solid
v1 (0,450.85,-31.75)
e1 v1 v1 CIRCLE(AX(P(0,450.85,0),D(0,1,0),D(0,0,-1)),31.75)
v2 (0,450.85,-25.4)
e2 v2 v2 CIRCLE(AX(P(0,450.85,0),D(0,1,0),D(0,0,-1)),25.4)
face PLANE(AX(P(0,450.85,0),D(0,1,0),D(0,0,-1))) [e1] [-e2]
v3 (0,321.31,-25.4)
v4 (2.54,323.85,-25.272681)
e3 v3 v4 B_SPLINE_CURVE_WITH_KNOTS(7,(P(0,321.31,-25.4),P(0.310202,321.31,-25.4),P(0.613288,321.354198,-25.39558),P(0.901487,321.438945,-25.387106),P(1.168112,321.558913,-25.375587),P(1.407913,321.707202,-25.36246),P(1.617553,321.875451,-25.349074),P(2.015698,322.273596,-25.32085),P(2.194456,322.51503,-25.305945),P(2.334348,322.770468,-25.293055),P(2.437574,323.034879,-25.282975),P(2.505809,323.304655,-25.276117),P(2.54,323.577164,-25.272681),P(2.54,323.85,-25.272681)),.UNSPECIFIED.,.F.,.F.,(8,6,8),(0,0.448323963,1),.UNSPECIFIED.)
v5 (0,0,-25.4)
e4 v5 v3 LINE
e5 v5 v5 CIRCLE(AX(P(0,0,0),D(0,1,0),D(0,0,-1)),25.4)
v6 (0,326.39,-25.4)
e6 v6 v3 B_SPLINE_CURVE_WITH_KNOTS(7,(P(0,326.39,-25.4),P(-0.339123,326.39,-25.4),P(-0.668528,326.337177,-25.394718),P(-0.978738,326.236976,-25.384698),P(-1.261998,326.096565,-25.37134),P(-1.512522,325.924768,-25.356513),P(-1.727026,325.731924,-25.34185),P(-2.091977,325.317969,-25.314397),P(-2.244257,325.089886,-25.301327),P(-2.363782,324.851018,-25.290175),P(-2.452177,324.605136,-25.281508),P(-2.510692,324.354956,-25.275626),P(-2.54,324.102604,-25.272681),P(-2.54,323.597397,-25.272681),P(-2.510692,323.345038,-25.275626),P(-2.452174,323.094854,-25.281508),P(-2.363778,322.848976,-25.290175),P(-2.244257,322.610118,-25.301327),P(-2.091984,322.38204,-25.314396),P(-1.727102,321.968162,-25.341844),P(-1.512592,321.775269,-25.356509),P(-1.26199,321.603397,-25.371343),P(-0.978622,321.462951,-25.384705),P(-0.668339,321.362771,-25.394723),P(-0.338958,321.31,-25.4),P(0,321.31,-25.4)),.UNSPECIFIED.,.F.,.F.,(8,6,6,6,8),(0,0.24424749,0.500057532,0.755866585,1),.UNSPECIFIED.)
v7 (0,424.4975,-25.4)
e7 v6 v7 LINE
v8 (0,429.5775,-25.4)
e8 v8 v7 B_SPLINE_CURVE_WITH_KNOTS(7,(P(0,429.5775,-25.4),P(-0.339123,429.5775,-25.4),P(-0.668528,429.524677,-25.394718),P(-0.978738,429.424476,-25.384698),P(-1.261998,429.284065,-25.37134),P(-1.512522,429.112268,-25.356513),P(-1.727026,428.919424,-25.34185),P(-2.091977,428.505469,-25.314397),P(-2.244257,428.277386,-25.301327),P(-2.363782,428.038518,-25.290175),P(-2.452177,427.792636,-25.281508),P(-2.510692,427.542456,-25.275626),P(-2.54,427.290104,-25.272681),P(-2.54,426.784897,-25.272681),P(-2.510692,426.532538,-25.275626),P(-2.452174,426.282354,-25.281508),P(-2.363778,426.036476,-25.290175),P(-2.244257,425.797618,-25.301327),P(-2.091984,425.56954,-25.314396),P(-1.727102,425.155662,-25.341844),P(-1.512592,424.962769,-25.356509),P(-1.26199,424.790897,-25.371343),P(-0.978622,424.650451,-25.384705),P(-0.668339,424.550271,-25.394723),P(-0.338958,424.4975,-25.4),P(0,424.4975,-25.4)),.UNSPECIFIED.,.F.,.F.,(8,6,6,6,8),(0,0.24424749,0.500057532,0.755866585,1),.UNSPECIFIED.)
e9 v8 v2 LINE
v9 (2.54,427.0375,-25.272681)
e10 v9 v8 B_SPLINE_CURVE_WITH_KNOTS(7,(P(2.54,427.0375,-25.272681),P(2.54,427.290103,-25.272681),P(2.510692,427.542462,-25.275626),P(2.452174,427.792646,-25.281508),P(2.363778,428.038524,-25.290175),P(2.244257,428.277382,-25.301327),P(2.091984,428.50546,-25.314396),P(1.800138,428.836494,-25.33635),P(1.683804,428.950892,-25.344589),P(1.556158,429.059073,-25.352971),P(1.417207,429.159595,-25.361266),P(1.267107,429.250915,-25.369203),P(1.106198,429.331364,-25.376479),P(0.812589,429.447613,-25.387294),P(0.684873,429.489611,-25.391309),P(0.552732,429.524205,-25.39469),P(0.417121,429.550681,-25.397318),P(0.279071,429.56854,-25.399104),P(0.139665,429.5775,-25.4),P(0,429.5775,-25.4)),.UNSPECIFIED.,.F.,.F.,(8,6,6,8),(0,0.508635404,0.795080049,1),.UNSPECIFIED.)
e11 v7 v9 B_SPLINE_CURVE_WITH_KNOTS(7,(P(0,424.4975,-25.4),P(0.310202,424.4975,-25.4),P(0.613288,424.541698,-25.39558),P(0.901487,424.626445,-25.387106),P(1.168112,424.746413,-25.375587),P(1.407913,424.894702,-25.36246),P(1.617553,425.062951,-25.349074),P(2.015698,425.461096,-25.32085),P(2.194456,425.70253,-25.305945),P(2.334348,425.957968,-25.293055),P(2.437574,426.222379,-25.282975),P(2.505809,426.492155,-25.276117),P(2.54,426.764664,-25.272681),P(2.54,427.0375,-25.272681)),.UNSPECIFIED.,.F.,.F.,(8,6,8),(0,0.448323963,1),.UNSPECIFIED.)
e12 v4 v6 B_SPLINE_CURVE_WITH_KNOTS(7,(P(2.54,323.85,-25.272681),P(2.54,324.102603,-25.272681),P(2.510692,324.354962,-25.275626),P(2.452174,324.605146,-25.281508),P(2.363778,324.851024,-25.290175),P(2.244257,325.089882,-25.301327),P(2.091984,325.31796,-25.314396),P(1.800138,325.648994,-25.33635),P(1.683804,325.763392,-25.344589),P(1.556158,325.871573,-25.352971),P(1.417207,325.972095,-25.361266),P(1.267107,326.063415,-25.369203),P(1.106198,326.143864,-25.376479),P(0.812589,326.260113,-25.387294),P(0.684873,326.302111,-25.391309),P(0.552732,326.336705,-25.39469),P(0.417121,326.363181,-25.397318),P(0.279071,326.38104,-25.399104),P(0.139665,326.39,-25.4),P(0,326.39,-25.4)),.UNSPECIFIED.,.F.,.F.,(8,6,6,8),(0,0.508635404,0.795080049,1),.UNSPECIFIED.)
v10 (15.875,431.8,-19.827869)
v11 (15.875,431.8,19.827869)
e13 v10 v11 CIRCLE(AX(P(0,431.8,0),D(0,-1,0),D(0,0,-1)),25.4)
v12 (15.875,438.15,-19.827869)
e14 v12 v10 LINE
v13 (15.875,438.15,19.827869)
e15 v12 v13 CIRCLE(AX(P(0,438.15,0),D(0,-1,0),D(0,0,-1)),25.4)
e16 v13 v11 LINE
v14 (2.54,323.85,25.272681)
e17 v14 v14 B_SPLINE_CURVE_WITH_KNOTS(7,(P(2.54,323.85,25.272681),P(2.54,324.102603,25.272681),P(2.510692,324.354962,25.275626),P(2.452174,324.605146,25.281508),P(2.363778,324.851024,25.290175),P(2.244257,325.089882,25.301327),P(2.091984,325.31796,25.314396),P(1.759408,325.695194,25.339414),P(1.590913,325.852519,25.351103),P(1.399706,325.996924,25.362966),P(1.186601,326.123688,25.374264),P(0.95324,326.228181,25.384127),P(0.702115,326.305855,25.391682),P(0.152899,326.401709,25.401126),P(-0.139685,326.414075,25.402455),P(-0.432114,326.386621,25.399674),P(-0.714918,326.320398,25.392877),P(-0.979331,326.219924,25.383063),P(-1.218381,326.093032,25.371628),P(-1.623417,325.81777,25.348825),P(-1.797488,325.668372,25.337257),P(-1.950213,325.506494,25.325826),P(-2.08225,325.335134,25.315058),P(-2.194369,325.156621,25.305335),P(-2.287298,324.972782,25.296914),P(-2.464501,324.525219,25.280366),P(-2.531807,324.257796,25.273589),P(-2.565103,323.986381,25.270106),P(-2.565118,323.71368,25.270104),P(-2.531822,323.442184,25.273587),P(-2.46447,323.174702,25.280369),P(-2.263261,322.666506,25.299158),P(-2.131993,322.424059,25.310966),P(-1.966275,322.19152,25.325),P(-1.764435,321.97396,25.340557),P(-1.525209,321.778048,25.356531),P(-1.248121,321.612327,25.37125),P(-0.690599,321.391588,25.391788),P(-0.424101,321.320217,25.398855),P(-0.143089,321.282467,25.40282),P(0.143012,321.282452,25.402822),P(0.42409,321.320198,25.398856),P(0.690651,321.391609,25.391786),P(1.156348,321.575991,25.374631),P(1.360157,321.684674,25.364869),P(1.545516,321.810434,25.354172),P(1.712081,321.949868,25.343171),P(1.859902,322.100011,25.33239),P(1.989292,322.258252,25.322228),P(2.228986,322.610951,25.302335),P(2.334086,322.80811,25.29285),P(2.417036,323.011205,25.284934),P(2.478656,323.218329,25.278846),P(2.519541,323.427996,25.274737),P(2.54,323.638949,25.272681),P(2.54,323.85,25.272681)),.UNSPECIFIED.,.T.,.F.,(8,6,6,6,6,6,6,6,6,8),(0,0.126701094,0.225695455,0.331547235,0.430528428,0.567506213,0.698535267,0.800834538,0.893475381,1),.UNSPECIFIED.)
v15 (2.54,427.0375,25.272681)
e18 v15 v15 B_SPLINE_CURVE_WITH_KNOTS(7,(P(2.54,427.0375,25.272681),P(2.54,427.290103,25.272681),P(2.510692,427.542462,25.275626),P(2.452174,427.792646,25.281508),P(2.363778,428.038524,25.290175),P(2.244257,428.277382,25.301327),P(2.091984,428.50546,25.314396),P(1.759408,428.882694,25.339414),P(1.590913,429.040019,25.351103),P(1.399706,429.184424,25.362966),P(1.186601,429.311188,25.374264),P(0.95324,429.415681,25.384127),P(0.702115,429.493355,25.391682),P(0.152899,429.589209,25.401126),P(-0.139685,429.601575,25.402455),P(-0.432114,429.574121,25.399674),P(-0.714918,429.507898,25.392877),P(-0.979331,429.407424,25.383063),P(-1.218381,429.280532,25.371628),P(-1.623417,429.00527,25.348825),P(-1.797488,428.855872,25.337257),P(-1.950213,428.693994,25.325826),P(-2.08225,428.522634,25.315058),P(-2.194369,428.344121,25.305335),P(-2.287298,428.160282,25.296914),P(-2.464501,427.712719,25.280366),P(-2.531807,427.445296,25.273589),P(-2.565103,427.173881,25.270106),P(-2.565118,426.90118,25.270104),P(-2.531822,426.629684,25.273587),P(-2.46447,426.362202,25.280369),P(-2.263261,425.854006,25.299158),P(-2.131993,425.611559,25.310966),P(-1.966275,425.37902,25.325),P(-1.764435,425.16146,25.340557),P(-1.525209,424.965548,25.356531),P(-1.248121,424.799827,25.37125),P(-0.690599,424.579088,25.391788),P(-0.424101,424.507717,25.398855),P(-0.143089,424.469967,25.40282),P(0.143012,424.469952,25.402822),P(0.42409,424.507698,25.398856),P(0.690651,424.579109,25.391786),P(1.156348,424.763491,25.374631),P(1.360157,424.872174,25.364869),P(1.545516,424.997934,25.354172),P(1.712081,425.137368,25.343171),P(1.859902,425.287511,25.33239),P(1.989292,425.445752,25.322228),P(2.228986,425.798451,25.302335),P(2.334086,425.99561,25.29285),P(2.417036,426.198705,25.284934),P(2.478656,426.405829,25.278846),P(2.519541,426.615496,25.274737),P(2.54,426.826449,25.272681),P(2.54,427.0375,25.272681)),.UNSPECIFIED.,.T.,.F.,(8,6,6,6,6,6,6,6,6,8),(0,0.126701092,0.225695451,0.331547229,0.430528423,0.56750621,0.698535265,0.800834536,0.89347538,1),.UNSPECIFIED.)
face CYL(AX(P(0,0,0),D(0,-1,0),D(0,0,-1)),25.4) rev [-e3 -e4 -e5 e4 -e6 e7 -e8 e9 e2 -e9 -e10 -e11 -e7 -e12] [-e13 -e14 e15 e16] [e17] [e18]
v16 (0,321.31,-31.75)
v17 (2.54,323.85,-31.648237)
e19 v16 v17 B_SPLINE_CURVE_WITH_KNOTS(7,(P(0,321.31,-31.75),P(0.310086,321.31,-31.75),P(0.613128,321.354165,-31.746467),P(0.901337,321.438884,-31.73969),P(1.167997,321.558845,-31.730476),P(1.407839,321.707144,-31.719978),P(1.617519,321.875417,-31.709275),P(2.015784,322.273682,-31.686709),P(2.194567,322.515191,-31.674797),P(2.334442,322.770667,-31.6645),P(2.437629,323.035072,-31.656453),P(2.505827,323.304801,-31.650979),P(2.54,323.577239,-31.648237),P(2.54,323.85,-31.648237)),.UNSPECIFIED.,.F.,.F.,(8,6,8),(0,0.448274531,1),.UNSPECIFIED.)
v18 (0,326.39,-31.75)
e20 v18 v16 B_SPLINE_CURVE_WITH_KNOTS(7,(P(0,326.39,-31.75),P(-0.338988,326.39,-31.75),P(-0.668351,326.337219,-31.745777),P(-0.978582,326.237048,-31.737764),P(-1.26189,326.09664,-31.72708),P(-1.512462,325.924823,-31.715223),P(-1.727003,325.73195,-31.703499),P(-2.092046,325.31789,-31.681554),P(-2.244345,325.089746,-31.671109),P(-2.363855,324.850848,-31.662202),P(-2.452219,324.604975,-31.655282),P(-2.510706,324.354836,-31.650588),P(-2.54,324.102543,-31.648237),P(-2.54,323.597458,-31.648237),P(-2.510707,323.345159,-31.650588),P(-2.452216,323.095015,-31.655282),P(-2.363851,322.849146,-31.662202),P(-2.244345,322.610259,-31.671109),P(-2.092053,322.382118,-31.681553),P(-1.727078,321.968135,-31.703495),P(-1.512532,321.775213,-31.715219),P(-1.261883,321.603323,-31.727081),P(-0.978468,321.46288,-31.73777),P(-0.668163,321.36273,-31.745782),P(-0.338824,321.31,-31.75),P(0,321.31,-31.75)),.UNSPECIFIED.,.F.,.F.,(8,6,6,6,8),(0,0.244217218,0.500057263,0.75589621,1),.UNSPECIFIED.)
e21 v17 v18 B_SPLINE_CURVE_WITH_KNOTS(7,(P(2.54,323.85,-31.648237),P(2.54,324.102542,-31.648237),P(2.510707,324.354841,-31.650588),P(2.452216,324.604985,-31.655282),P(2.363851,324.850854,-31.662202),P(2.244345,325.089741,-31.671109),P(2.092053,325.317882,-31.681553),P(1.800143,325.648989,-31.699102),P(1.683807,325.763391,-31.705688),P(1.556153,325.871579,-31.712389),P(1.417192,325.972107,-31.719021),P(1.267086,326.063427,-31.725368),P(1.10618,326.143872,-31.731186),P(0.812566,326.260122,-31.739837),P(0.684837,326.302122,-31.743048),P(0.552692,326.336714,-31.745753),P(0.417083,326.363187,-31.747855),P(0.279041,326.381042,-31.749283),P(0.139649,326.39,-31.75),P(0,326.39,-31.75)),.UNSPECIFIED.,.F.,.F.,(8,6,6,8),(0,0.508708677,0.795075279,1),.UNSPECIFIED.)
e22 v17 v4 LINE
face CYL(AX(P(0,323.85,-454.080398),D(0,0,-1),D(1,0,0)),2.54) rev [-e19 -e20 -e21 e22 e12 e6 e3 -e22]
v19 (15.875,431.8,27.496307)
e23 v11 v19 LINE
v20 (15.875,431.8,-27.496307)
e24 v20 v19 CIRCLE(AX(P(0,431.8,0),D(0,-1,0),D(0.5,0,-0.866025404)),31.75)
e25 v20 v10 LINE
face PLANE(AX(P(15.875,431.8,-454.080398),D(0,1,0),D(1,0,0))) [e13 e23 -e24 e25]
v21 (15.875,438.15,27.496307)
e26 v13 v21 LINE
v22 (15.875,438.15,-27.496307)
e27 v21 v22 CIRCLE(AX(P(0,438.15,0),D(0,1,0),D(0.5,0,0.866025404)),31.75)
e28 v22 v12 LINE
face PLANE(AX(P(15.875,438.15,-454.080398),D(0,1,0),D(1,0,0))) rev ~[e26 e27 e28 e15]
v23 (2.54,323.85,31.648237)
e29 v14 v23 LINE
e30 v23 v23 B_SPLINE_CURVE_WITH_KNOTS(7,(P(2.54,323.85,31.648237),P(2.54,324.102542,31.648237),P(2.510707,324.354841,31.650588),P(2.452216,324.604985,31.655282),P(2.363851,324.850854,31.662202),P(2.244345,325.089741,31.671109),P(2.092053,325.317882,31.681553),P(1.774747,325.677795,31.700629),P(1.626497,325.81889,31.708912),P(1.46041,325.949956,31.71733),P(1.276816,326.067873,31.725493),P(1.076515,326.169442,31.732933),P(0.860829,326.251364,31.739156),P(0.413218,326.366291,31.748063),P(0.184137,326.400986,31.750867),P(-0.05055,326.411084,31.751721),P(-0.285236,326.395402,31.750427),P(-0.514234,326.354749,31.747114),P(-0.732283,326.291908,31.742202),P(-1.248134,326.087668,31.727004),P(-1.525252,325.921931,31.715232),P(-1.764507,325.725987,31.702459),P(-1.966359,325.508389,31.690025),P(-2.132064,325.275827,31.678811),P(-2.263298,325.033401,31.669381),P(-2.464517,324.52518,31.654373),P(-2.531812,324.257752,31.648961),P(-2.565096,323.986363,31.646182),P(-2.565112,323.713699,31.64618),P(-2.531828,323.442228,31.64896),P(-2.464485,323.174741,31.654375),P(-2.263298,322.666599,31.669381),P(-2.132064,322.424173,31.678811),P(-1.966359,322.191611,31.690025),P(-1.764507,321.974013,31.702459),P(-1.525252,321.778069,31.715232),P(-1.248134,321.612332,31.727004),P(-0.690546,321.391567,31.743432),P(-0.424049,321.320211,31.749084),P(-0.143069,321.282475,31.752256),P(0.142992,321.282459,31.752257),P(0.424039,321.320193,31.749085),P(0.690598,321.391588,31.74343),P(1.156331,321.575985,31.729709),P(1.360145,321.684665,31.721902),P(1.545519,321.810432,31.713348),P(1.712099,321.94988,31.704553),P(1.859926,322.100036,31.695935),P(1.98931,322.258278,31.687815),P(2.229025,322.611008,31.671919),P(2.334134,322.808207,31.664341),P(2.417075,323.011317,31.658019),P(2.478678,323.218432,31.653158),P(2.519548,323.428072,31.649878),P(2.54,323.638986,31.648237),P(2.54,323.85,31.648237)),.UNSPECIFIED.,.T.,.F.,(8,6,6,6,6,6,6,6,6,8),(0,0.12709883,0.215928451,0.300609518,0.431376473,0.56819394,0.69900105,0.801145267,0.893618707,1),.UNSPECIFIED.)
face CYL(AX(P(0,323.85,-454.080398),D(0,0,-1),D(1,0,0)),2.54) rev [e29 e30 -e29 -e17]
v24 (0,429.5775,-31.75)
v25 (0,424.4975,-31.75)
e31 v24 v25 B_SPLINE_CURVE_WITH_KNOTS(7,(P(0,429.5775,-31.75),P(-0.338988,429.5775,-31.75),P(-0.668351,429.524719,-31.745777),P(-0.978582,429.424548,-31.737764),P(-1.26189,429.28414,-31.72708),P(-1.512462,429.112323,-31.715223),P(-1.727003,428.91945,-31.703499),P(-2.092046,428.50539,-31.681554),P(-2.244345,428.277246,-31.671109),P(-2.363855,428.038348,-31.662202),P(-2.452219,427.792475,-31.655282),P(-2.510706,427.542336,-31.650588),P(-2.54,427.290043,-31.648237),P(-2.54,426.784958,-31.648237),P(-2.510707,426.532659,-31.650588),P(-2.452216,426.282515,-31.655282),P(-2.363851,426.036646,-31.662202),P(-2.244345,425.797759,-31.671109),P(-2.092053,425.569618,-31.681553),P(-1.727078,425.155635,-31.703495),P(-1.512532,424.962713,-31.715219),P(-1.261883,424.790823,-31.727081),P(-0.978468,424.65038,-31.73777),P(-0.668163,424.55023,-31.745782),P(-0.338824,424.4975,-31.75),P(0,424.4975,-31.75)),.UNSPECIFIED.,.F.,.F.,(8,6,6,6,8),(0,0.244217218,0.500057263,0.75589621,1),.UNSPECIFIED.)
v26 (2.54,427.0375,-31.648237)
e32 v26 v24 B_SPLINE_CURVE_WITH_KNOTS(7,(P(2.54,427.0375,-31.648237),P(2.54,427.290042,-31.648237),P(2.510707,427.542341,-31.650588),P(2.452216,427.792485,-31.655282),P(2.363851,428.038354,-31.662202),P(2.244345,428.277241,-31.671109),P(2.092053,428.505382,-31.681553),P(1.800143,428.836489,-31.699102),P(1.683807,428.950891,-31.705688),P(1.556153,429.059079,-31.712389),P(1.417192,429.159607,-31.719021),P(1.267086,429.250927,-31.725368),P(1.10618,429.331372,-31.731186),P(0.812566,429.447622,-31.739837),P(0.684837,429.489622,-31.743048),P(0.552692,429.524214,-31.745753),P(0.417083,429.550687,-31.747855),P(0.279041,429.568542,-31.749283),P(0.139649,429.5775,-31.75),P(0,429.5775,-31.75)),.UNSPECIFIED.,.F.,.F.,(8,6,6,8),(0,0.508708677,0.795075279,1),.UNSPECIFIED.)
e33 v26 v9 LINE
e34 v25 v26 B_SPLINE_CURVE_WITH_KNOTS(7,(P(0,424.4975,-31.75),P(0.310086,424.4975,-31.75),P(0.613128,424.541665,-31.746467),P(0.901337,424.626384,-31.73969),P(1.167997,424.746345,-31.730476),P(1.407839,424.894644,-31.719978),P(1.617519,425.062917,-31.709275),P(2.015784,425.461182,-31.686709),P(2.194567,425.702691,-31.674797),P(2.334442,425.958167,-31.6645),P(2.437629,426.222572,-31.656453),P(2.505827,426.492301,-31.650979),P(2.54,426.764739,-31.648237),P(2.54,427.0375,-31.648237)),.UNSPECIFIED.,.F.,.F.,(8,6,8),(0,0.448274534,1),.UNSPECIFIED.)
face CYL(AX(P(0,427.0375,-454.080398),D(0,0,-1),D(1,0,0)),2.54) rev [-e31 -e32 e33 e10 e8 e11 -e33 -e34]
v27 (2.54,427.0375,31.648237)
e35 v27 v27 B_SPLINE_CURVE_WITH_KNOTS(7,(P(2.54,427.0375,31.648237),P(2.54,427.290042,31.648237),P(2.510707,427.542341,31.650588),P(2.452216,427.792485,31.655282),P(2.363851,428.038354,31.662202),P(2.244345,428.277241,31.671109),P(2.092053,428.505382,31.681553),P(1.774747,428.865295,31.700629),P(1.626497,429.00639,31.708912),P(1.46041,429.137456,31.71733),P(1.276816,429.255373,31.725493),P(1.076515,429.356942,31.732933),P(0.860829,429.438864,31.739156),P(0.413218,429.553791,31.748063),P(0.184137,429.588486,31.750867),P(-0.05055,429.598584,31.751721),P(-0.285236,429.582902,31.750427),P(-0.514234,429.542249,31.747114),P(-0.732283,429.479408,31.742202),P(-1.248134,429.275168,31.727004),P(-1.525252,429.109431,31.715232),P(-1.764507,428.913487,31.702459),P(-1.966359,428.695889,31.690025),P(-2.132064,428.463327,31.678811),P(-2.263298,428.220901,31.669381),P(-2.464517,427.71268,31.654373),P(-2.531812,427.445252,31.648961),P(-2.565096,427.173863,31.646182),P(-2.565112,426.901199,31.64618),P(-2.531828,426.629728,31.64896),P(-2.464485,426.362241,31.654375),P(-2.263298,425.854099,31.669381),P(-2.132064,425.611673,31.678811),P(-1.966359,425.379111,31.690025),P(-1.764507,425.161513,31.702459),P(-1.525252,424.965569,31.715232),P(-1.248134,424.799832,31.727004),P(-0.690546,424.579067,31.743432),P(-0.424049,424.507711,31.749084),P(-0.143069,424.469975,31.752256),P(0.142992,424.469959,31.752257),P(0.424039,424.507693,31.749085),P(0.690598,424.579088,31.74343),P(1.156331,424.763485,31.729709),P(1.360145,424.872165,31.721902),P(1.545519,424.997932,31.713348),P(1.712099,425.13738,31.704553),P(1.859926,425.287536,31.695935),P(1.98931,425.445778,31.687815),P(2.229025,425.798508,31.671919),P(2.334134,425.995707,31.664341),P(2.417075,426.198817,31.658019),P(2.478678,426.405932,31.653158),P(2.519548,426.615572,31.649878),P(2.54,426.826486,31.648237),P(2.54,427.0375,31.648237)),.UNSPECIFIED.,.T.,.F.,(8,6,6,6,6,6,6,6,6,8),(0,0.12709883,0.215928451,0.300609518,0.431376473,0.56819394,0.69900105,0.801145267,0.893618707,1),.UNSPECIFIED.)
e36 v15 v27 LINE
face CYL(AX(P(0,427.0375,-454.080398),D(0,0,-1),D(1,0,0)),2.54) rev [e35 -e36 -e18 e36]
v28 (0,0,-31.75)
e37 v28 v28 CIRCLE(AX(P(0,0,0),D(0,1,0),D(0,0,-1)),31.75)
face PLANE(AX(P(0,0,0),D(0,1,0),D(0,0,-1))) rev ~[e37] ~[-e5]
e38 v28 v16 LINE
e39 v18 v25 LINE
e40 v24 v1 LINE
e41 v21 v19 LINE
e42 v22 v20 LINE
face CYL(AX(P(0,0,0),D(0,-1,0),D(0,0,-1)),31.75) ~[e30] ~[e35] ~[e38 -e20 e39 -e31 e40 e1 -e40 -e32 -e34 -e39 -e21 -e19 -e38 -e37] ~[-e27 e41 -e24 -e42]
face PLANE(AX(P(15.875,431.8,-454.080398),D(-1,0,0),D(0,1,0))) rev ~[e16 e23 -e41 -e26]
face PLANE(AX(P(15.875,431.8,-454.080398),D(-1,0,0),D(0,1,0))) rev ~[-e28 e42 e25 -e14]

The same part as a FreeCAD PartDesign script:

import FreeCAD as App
import Part
import Sketcher
from FreeCAD import Vector
Q = App.Units.Quantity

doc = App.newDocument("Part")
body = doc.addObject("PartDesign::Body", "Body")

# Sketch on XZ plane
sketch1 = doc.addObject("Sketcher::SketchObject", "Sketch")
body.addObject(sketch1)
sketch1.AttachmentSupport = (doc.XZ_Plane, [""])
sketch1.MapMode = "FlatFace"
sketch1.addGeometry(Part.Circle(Vector(0, 0, 0), Vector(0, 0, 1), 32), False)
sketch1.addGeometry(Part.Circle(Vector(0, 0, 0), Vector(0, 0, 1), 25), False)
sketch1.addConstraint(Sketcher.Constraint("Coincident", 0, 3, -1, 1))
sketch1.addConstraint(Sketcher.Constraint("Coincident", 1, 3, -1, 1))
sketch1.addConstraint(Sketcher.Constraint("Diameter", 1, Q("2 in")))
sketch1.addConstraint(Sketcher.Constraint("Diameter", 0, Q("2.5 in")))
pad1 = doc.addObject("PartDesign::Pad", "Pad")
body.addObject(pad1)
pad1.Profile = sketch1
pad1.Length = Q("17.75 in")
pad1.Reversed = True

# Sketch on XY plane
sketch2 = doc.addObject("Sketcher::SketchObject", "Sketch001")
body.addObject(sketch2)
sketch2.AttachmentSupport = (doc.XY_Plane, [""])
sketch2.MapMode = "FlatFace"
sketch2.addGeometry(Part.Circle(Vector(0, 323.9, 0), Vector(0, 0, 1), 2.5), False)
sketch2.addGeometry(Part.Circle(Vector(0, 427, 0), Vector(0, 0, 1), 2.5), False)
sketch2.addGeometry(Part.LineSegment(Vector(15.9, 438.1, 0), Vector(15.9, 431.8, 0)), False)
sketch2.addGeometry(Part.LineSegment(Vector(15.9, 431.8, 0), Vector(31.8, 431.8, 0)), False)
sketch2.addGeometry(Part.LineSegment(Vector(31.8, 431.8, 0), Vector(31.8, 438.1, 0)), False)
sketch2.addGeometry(Part.LineSegment(Vector(31.8, 438.1, 0), Vector(15.9, 438.1, 0)), False)
sketch2.addConstraint(Sketcher.Constraint("Coincident", 2, 2, 3, 1))
sketch2.addConstraint(Sketcher.Constraint("Coincident", 3, 2, 4, 1))
sketch2.addConstraint(Sketcher.Constraint("Coincident", 4, 2, 5, 1))
sketch2.addConstraint(Sketcher.Constraint("Coincident", 5, 2, 2, 1))
sketch2.addConstraint(Sketcher.Constraint("Vertical", 2))
sketch2.addConstraint(Sketcher.Constraint("Horizontal", 3))
sketch2.addConstraint(Sketcher.Constraint("Vertical", 4))
sketch2.addConstraint(Sketcher.Constraint("Horizontal", 5))
sketch2.addConstraint(Sketcher.Constraint("Equal", 0, 1))
sketch2.addConstraint(Sketcher.Constraint("PointOnObject", 0, 3, -2))
sketch2.addConstraint(Sketcher.Constraint("PointOnObject", 1, 3, -2))
sketch2.addConstraint(Sketcher.Constraint("Diameter", 0, Q("0.2 in")))
sketch2.addConstraint(Sketcher.Constraint("DistanceY", -1, 1, 2, 2, Q("17 in")))
sketch2.addConstraint(Sketcher.Constraint("DistanceY", 2, 2, 2, 1, Q("0.25 in")))
sketch2.addConstraint(Sketcher.Constraint("DistanceY", 0, 3, 4, 2, Q("4.5 in")))
sketch2.addConstraint(Sketcher.Constraint("DistanceX", 3, 1, 3, 2, Q("0.625 in")))
sketch2.addConstraint(Sketcher.Constraint("DistanceX", -1, 1, 3, 2, Q("1.25 in")))
sketch2.addConstraint(Sketcher.Constraint("DistanceY", -1, 1, 1, 3, Q("16.8125 in")))
pocket1 = doc.addObject("PartDesign::Pocket", "Pocket")
body.addObject(pocket1)
pocket1.Profile = sketch2
pocket1.Type = "ThroughAll"
pocket1.Midplane = True

doc.recompute()
